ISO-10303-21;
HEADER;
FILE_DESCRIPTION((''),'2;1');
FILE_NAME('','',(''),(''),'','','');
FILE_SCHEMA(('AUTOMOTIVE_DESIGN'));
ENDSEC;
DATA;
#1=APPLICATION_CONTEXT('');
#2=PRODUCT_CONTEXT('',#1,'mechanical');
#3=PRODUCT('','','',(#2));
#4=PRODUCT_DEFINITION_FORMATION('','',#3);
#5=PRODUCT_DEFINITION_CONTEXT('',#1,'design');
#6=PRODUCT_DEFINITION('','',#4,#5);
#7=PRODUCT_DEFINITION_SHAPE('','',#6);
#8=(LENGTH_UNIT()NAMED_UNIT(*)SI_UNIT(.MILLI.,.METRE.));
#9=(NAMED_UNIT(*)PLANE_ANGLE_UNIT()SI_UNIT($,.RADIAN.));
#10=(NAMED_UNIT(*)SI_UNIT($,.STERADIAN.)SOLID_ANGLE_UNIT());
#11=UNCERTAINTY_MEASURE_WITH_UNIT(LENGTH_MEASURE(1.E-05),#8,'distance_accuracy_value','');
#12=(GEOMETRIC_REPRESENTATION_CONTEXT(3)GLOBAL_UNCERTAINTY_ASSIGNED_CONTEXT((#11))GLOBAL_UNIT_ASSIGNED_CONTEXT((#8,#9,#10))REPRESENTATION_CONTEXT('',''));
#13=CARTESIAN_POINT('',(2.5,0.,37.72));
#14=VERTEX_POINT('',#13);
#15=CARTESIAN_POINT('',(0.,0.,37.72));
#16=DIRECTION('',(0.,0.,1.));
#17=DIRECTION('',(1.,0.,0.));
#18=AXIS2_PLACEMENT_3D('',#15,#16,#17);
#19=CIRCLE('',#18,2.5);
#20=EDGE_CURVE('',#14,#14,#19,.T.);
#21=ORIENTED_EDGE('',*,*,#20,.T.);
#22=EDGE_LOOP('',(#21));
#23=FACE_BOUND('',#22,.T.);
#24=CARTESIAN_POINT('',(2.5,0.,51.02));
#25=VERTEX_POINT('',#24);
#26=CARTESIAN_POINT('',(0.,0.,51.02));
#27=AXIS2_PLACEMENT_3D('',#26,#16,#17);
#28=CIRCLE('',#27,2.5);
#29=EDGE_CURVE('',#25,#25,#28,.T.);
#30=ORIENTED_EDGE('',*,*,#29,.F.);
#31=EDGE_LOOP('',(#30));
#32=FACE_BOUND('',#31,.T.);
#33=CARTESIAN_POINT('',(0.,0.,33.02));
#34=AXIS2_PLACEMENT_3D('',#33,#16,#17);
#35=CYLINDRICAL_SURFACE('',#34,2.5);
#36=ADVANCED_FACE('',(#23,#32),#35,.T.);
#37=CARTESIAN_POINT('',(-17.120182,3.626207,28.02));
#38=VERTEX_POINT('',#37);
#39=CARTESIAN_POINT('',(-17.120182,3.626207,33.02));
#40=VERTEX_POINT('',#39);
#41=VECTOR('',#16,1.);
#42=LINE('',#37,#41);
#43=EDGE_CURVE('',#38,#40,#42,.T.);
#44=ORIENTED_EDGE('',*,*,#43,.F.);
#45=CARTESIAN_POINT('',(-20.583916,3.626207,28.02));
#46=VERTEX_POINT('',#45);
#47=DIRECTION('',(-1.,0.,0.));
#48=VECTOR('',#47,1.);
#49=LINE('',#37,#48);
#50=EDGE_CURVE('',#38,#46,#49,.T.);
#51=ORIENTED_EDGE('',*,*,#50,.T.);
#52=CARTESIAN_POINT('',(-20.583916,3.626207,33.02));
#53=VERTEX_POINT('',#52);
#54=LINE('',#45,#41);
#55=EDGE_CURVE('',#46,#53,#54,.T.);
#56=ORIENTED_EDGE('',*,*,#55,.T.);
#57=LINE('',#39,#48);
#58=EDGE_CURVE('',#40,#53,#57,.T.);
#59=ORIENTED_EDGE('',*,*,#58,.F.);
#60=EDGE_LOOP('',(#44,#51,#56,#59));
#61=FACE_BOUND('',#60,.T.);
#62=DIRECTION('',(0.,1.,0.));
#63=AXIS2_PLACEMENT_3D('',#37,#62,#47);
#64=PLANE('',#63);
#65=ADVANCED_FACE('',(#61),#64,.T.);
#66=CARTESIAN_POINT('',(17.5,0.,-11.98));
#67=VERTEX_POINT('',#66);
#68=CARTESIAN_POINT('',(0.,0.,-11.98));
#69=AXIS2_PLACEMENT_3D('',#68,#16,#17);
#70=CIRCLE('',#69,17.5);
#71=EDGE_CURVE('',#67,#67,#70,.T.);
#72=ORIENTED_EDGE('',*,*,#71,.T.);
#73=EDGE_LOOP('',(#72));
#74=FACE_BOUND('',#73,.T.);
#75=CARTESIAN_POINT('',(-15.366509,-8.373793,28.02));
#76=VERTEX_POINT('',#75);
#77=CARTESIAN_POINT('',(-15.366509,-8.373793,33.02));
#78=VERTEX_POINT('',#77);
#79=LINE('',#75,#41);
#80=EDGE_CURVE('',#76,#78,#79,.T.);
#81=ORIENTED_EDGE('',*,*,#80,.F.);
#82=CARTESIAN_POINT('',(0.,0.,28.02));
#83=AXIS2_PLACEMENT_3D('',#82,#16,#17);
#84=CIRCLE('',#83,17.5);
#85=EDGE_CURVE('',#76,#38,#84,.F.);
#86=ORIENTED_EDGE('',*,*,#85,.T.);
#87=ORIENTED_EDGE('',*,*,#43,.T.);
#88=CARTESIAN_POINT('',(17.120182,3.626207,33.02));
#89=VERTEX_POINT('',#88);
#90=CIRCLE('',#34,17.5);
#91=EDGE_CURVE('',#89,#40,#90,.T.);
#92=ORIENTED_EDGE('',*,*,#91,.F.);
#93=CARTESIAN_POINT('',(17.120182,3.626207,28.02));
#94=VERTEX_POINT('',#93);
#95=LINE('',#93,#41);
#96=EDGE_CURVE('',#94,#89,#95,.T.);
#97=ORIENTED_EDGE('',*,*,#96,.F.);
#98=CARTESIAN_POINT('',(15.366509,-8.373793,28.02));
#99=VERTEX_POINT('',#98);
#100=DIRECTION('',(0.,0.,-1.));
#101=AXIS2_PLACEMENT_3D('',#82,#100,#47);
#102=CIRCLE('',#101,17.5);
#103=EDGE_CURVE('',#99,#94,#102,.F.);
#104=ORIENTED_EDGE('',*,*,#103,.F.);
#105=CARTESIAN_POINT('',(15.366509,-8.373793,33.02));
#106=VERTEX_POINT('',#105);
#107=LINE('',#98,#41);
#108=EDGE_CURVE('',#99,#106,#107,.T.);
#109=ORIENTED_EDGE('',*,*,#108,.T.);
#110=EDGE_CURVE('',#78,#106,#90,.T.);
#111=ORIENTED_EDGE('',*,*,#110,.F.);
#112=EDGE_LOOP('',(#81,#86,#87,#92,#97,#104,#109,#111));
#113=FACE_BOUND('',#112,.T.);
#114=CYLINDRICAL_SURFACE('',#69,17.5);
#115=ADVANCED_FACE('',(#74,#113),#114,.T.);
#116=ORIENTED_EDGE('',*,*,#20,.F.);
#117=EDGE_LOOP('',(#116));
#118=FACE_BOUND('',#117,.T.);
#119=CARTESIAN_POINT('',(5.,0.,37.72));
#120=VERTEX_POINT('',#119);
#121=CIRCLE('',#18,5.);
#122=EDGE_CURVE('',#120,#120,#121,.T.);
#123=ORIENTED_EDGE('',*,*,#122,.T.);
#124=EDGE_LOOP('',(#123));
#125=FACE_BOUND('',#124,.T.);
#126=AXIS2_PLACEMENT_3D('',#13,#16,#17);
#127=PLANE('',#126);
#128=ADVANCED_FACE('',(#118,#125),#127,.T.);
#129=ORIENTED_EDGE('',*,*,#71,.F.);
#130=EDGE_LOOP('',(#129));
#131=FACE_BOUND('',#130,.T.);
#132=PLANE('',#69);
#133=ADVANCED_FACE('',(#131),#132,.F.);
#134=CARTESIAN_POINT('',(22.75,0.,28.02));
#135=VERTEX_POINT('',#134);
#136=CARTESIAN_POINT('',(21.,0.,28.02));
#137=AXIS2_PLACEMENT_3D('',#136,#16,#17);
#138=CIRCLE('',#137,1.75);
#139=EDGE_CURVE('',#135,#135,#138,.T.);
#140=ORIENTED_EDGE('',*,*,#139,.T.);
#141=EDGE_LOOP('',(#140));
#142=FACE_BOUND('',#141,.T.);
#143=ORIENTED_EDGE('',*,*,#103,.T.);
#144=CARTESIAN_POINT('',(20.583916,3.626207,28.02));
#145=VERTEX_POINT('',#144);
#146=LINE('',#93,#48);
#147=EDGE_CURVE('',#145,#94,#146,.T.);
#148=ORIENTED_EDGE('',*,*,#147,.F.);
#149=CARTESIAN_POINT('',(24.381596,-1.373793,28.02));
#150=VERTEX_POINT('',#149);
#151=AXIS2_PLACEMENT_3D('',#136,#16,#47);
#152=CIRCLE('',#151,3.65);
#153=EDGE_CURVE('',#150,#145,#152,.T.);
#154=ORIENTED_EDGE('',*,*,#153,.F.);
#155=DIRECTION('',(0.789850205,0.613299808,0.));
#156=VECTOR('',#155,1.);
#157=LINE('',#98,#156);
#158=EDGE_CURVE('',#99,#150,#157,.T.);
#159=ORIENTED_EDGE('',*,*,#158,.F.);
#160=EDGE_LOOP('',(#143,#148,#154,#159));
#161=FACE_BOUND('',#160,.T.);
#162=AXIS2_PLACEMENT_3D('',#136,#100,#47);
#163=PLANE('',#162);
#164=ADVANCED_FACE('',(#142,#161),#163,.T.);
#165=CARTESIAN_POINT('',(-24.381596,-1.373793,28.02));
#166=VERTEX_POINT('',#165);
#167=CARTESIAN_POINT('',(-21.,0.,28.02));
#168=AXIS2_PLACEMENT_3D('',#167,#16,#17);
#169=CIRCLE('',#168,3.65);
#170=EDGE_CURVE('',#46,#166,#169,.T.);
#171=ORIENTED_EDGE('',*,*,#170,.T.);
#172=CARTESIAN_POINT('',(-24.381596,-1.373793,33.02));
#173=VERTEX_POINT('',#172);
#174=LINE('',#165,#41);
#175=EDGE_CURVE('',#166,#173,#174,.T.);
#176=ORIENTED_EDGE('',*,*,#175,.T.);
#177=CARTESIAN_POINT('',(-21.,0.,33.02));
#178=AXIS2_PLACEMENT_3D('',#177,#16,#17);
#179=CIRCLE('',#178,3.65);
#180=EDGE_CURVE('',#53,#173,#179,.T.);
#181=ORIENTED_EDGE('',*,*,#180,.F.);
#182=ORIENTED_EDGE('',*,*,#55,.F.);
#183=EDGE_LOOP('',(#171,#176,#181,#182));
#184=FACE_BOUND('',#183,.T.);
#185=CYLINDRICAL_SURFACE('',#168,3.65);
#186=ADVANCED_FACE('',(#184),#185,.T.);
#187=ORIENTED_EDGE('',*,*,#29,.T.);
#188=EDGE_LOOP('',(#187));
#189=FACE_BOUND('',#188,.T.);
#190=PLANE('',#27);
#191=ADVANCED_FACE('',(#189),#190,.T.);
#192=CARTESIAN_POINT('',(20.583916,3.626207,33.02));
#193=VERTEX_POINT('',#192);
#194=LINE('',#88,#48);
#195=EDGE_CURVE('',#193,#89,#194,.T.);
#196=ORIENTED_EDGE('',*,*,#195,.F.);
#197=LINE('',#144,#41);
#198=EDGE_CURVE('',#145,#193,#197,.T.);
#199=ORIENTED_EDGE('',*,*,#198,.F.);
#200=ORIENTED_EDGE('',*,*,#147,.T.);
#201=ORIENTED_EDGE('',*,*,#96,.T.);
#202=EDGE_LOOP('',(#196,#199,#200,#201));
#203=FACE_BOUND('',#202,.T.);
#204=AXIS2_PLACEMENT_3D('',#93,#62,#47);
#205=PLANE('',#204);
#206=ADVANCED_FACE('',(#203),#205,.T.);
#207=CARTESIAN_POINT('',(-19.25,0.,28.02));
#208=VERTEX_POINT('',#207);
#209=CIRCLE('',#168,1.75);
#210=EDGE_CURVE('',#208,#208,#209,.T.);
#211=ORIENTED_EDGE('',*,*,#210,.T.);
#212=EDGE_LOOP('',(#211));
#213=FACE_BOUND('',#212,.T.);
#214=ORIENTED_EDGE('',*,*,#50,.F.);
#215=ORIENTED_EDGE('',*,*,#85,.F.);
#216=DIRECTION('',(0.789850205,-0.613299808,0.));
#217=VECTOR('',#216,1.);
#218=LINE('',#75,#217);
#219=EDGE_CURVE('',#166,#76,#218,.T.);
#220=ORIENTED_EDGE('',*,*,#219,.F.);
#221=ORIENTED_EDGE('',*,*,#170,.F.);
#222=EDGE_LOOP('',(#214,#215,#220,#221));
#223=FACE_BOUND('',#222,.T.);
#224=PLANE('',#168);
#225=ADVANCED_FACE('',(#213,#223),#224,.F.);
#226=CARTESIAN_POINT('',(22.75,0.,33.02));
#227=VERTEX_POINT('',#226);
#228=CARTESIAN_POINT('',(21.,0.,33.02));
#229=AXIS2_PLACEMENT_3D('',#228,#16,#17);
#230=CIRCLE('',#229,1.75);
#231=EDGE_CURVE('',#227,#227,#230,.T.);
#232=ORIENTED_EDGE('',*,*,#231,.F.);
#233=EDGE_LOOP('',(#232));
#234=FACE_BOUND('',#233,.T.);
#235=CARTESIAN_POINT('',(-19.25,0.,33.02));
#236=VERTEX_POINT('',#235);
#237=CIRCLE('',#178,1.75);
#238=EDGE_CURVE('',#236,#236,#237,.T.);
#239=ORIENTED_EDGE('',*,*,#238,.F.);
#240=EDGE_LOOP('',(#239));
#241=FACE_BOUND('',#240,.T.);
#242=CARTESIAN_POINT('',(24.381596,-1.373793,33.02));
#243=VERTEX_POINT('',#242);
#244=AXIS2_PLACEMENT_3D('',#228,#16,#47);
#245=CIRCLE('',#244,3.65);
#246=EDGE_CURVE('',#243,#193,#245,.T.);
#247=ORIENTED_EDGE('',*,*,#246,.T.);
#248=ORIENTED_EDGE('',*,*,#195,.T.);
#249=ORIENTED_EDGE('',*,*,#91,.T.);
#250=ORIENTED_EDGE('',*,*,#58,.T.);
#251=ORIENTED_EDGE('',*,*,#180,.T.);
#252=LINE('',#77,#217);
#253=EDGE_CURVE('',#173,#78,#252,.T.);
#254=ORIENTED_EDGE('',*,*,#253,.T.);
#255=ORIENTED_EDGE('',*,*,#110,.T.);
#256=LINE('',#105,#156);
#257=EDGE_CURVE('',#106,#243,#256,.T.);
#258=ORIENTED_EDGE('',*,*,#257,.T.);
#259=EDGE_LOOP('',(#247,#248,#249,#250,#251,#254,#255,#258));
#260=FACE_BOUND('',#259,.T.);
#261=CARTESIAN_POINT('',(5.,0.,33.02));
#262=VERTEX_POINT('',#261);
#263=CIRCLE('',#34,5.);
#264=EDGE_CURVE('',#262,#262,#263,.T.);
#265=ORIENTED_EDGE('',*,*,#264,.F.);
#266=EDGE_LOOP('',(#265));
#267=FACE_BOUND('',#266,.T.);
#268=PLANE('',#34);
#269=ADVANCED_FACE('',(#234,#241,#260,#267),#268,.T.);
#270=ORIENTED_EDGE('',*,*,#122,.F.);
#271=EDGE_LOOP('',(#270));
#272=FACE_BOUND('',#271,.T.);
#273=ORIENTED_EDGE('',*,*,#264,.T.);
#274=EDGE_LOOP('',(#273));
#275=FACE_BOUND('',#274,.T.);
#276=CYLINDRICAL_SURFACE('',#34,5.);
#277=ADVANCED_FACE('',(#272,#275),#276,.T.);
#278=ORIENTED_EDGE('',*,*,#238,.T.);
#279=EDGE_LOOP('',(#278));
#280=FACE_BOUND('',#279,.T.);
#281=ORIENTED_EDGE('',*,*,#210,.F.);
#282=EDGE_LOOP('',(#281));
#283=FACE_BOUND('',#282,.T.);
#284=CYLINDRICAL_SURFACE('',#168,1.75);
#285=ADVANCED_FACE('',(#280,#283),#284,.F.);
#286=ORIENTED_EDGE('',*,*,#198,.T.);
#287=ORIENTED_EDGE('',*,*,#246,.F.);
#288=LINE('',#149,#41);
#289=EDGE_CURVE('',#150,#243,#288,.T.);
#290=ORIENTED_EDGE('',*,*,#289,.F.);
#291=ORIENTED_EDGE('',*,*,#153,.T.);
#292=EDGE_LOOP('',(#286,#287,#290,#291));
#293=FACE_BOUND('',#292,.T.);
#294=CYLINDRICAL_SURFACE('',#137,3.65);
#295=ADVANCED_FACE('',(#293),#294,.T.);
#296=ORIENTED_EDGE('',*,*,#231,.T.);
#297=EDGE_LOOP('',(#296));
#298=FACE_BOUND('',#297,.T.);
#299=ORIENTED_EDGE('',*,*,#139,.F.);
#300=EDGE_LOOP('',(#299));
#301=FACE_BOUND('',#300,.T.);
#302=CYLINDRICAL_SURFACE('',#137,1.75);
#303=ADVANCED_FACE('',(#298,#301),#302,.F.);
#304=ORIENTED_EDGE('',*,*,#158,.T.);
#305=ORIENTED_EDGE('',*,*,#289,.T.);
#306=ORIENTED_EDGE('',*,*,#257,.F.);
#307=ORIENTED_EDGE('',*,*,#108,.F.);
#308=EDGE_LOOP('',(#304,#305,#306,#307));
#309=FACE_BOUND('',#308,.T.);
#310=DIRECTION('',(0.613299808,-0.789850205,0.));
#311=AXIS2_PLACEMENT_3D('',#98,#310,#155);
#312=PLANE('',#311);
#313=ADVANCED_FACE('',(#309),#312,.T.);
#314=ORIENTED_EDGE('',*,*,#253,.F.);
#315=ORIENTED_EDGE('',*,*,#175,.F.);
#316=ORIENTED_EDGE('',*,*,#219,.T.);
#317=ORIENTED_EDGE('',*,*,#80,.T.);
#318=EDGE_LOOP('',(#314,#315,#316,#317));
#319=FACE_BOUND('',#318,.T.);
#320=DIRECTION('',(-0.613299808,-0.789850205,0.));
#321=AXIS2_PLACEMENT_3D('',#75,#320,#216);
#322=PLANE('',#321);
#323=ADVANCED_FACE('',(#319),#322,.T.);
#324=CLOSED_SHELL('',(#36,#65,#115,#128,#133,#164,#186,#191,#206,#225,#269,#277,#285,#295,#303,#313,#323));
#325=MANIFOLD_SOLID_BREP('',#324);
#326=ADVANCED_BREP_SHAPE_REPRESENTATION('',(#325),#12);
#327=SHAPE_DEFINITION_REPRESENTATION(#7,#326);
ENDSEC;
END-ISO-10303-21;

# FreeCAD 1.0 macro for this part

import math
import FreeCAD as App
import Part
import Sketcher

V = App.Vector

doc = App.newDocument("Part")
params = doc.addObject("Spreadsheet::Sheet", "Params")
for row, (alias, value) in enumerate([
    ("sketch1_diameter", "35 mm"),
    ("pad1_length", "45 mm"),
    ("sketch2_width", "5 mm"),
    ("sketch2_height", "18 mm"),
    ("sketch2_height2", "13.3 mm"),
    ("revolution_angle", "360 deg"),
    ("sketch3_diameter", "3.5 mm"),
    ("sketch3_radius", "3.65 mm"),
    ("pad2_length", "5 mm"),
], start=1):
    params.set(f"A{row}", alias)
    params.set(f"B{row}", "=" + value)
    params.setAlias(f"B{row}", alias)

body = doc.addObject("PartDesign::Body", "Body")

sketch1 = body.newObject("Sketcher::SketchObject", "Sketch")
sketch1.AttachmentSupport = (doc.getObject("XY_Plane"), [""])
sketch1.MapMode = "FlatFace"
sketch1.AttachmentOffset = App.Placement(V(0, 0, 33.02), App.Rotation())
sketch1.addGeometry(Part.Circle(V(0, 0, 0), V(0, 0, 1), 18), False)
sketch1.addConstraint(Sketcher.Constraint("Coincident", 0, 3, -1, 1))
sketch1.addConstraint(Sketcher.Constraint("Diameter", 0, 35.0))
sketch1.setExpression("Constraints[1]", "Params.sketch1_diameter")
pad1 = body.newObject("PartDesign::Pad", "Pad")
pad1.Profile = sketch1
pad1.setExpression("Length", "Params.pad1_length")
pad1.Reversed = True

sketch2 = body.newObject("Sketcher::SketchObject", "Sketch001")
sketch2.AttachmentSupport = (doc.getObject("XZ_Plane"), [""])
sketch2.MapMode = "FlatFace"
sketch2.addGeometry(Part.LineSegment(V(5, 33, 0), V(0, 33, 0)), False)
sketch2.addGeometry(Part.LineSegment(V(0, 33, 0), V(0, 51, 0)), False)
sketch2.addGeometry(Part.LineSegment(V(0, 51, 0), V(2.5, 51, 0)), False)
sketch2.addGeometry(Part.LineSegment(V(2.5, 51, 0), V(2.5, 37.7, 0)), False)
sketch2.addGeometry(Part.LineSegment(V(2.5, 37.7, 0), V(5, 37.7, 0)), False)
sketch2.addGeometry(Part.LineSegment(V(5, 37.7, 0), V(5, 33, 0)), False)
sketch2.addConstraint(Sketcher.Constraint("Coincident", 0, 2, 1, 1))
sketch2.addConstraint(Sketcher.Constraint("Coincident", 1, 2, 2, 1))
sketch2.addConstraint(Sketcher.Constraint("Coincident", 2, 2, 3, 1))
sketch2.addConstraint(Sketcher.Constraint("Coincident", 3, 2, 4, 1))
sketch2.addConstraint(Sketcher.Constraint("Coincident", 4, 2, 5, 1))
sketch2.addConstraint(Sketcher.Constraint("Coincident", 5, 2, 0, 1))
sketch2.addConstraint(Sketcher.Constraint("Horizontal", 0))
sketch2.addConstraint(Sketcher.Constraint("Vertical", 1))
sketch2.addConstraint(Sketcher.Constraint("Horizontal", 2))
sketch2.addConstraint(Sketcher.Constraint("Vertical", 3))
sketch2.addConstraint(Sketcher.Constraint("Horizontal", 4))
sketch2.addConstraint(Sketcher.Constraint("Vertical", 5))
sketch2.addConstraint(Sketcher.Constraint("PointOnObject", 0, 2, -2))
sketch2.addConstraint(Sketcher.Constraint("Equal", 2, 4))
sketch2.addConstraint(Sketcher.Constraint("DistanceX", 0, 2, 0, 1, 5.0))
sketch2.addConstraint(Sketcher.Constraint("DistanceY", 1, 1, 1, 2, 18.0))
sketch2.addConstraint(Sketcher.Constraint("DistanceY", 3, 2, 3, 1, 13.3))
sketch2.addConstraint(Sketcher.Constraint("DistanceY", -1, 1, 0, 2, 33.02))
sketch2.setExpression("Constraints[14]", "Params.sketch2_width")
sketch2.setExpression("Constraints[15]", "Params.sketch2_height")
sketch2.setExpression("Constraints[16]", "Params.sketch2_height2")
revolution = body.newObject("PartDesign::Revolution", "Revolution")
revolution.Profile = sketch2
revolution.ReferenceAxis = (sketch2, ["V_Axis"])
revolution.setExpression("Angle", "Params.revolution_angle")

sketch3 = body.newObject("Sketcher::SketchObject", "Sketch002")
sketch3.AttachmentSupport = (doc.getObject("XY_Plane"), [""])
sketch3.MapMode = "FlatFace"
sketch3.AttachmentOffset = App.Placement(V(0, 0, 33.02), App.Rotation())
sketch3.addGeometry(Part.LineSegment(V(20.6, 3.6, 0), V(17.1, 3.6, 0)), False)
sketch3.addGeometry(Part.LineSegment(V(17.1, 3.6, 0), V(15.4, -8.4, 0)), False)
sketch3.addGeometry(Part.LineSegment(V(15.4, -8.4, 0), V(24.4, -1.4, 0)), False)
sketch3.addGeometry(Part.ArcOfCircle(Part.Circle(V(21, 0, 0), V(0, 0, 1), 3.6), math.radians(-22), math.radians(97)), False)
sketch3.addGeometry(Part.Circle(V(21, 0, 0), V(0, 0, 1), 1.8), False)
sketch3.addGeometry(Part.LineSegment(V(-17.1, 3.6, 0), V(-20.6, 3.6, 0)), False)
sketch3.addGeometry(Part.ArcOfCircle(Part.Circle(V(-21, 0, 0), V(0, 0, 1), 3.6), math.radians(83), math.radians(202)), False)
sketch3.addGeometry(Part.LineSegment(V(-24.4, -1.4, 0), V(-15.4, -8.4, 0)), False)
sketch3.addGeometry(Part.LineSegment(V(-15.4, -8.4, 0), V(-17.1, 3.6, 0)), False)
sketch3.addGeometry(Part.Circle(V(-21, 0, 0), V(0, 0, 1), 1.8), False)
sketch3.addConstraint(Sketcher.Constraint("Coincident", 0, 2, 1, 1))
sketch3.addConstraint(Sketcher.Constraint("Coincident", 1, 2, 2, 1))
sketch3.addConstraint(Sketcher.Constraint("Coincident", 2, 2, 3, 1))
sketch3.addConstraint(Sketcher.Constraint("Coincident", 3, 2, 0, 1))
sketch3.addConstraint(Sketcher.Constraint("Coincident", 5, 2, 6, 1))
sketch3.addConstraint(Sketcher.Constraint("Coincident", 6, 2, 7, 1))
sketch3.addConstraint(Sketcher.Constraint("Coincident", 7, 2, 8, 1))
sketch3.addConstraint(Sketcher.Constraint("Coincident", 8, 2, 5, 1))
sketch3.addConstraint(Sketcher.Constraint("Horizontal", 0))
sketch3.addConstraint(Sketcher.Constraint("Horizontal", 5))
sketch3.addConstraint(Sketcher.Constraint("Coincident", 4, 3, 3, 3))
sketch3.addConstraint(Sketcher.Constraint("Coincident", 9, 3, 6, 3))
sketch3.addConstraint(Sketcher.Constraint("Equal", 3, 6))
sketch3.addConstraint(Sketcher.Constraint("Equal", 4, 9))
sketch3.addConstraint(Sketcher.Constraint("Symmetric", 3, 3, 6, 3, -1, 1))
sketch3.addConstraint(Sketcher.Constraint("Symmetric", 3, 2, 5, 2, -2))
sketch3.addConstraint(Sketcher.Constraint("Symmetric", 1, 2, 7, 2, -2))
sketch3.addConstraint(Sketcher.Constraint("Horizontal", 2, 2, 6, 2))
sketch3.addConstraint(Sketcher.Constraint("Equal", 0, 5))
sketch3.addConstraint(Sketcher.Constraint("Diameter", 4, 3.5))
sketch3.addConstraint(Sketcher.Constraint("Radius", 3, 3.65))
sketch3.addConstraint(Sketcher.Constraint("DistanceX", -1, 1, 3, 3, 21.0))
sketch3.addConstraint(Sketcher.Constraint("DistanceY", 1, 2, 0, 2, 12.0))
sketch3.addConstraint(Sketcher.Constraint("DistanceY", 2, 2, 0, 2, 5.0))
sketch3.addConstraint(Sketcher.Constraint("DistanceX", 5, 2, 0, 2, 37.704098))
sketch3.addConstraint(Sketcher.Constraint("DistanceX", 0, 2, 0, 1, 3.463735))
sketch3.addConstraint(Sketcher.Constraint("DistanceX", -1, 1, 1, 2, 15.366509))
sketch3.setExpression("Constraints[19]", "Params.sketch3_diameter")
sketch3.setExpression("Constraints[20]", "Params.sketch3_radius")
pad2 = body.newObject("PartDesign::Pad", "Pad001")
pad2.Profile = sketch3
pad2.setExpression("Length", "Params.pad2_length")
pad2.Reversed = True

doc.recompute()
